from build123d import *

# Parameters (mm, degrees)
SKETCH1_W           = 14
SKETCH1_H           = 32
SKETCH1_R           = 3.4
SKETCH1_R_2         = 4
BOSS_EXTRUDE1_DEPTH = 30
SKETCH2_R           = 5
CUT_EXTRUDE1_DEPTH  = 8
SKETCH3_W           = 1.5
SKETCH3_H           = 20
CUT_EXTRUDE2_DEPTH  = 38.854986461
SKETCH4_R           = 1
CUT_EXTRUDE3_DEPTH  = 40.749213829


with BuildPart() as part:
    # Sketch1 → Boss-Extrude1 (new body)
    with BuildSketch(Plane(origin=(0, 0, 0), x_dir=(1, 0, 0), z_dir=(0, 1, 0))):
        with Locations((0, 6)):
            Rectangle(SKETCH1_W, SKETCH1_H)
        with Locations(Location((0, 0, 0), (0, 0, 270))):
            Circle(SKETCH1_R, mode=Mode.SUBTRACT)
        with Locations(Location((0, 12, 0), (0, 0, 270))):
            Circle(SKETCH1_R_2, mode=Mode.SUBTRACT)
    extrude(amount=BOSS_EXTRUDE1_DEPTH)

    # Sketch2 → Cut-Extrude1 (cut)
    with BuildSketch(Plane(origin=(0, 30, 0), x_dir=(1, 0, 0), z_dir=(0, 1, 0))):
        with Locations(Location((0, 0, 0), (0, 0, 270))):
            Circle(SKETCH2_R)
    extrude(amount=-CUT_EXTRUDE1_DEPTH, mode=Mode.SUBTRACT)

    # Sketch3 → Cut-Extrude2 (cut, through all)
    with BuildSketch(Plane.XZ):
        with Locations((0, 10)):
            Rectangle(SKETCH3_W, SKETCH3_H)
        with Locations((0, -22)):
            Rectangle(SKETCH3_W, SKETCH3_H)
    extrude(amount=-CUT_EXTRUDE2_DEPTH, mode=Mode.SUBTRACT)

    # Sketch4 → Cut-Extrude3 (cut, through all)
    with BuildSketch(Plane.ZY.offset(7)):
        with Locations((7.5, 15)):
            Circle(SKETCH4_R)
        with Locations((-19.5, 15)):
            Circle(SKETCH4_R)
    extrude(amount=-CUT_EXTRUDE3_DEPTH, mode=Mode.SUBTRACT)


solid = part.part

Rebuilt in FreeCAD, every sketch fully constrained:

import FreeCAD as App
import Part
import Sketcher
Q = App.Units.Quantity


def add_polygon(sketch, points):
    """Adds a closed chain of lines whose ends are joined by coincident constraints."""
    first, n = sketch.GeometryCount, len(points)
    for a, b in zip(points, points[1:] + points[:1]):
        sketch.addGeometry(Part.LineSegment(App.Vector(*a, 0), App.Vector(*b, 0)), False)
    for i in range(n):
        sketch.addConstraint(Sketcher.Constraint("Coincident", first + i, 2, first + (i + 1) % n, 1))

doc = App.newDocument("Part")
body = doc.addObject("PartDesign::Body", "Body")

# Sketch on XZ plane
sketch1 = body.newObject("Sketcher::SketchObject", "Sketch")
sketch1.AttachmentSupport = (doc.getObject("XZ_Plane"), [""])
sketch1.MapMode = "FlatFace"
add_polygon(sketch1, [(-7, -22), (-7, 10), (7, 10), (7, -22)])  # lines 0-3
sketch1.addGeometry(Part.Circle(App.Vector(0, 0, 0), App.Vector(0, 0, 1), 3.4), False)  # 4
sketch1.addGeometry(Part.Circle(App.Vector(0, -12, 0), App.Vector(0, 0, 1), 4), False)  # 5
sketch1.addConstraint(Sketcher.Constraint("Vertical", 0))
sketch1.addConstraint(Sketcher.Constraint("Horizontal", 1))
sketch1.addConstraint(Sketcher.Constraint("Vertical", 2))
sketch1.addConstraint(Sketcher.Constraint("Horizontal", 3))
sketch1.addConstraint(Sketcher.Constraint("Coincident", 4, 3, -1, 1))
sketch1.addConstraint(Sketcher.Constraint("PointOnObject", 5, 3, -2))
sketch1.addConstraint(Sketcher.Constraint("Diameter", 5, Q("8 mm")))
sketch1.addConstraint(Sketcher.Constraint("Diameter", 4, Q("6.8 mm")))
sketch1.addConstraint(Sketcher.Constraint("DistanceX", 1, 1, 1, 2, Q("14 mm")))
sketch1.addConstraint(Sketcher.Constraint("DistanceY", 0, 1, 0, 2, Q("32 mm")))
sketch1.addConstraint(Sketcher.Constraint("DistanceY", 5, 3, -1, 1, Q("12 mm")))
sketch1.addConstraint(Sketcher.Constraint("DistanceX", 0, 2, -1, 1, Q("7 mm")))
sketch1.addConstraint(Sketcher.Constraint("DistanceY", -1, 1, 0, 2, Q("10 mm")))
pad1 = body.newObject("PartDesign::Pad", "Pad")
pad1.Profile = sketch1
pad1.Length = 30
pad1.Reversed = True

# Sketch on XZ plane
sketch2 = body.newObject("Sketcher::SketchObject", "Sketch001")
sketch2.AttachmentSupport = (doc.getObject("XZ_Plane"), [""])
sketch2.MapMode = "FlatFace"
sketch2.AttachmentOffset = App.Placement(App.Vector(0, 0, -30), App.Rotation())
sketch2.addGeometry(Part.Circle(App.Vector(0, 0, 0), App.Vector(0, 0, 1), 5), False)
sketch2.addConstraint(Sketcher.Constraint("Coincident", 0, 3, -1, 1))
sketch2.addConstraint(Sketcher.Constraint("Diameter", 0, Q("10 mm")))
pocket1 = body.newObject("PartDesign::Pocket", "Pocket")
pocket1.Profile = sketch2
pocket1.Length = 8
pocket1.Reversed = True

# Sketch on XZ plane
sketch3 = body.newObject("Sketcher::SketchObject", "Sketch002")
sketch3.AttachmentSupport = (doc.getObject("XZ_Plane"), [""])
sketch3.MapMode = "FlatFace"
add_polygon(sketch3, [(-0.75, 20), (-0.75, 0), (0.75, 0), (0.75, 20)])  # lines 0-3
add_polygon(sketch3, [(-0.75, -12), (-0.75, -32), (0.75, -32), (0.75, -12)])  # lines 4-7
sketch3.addConstraint(Sketcher.Constraint("Vertical", 0))
sketch3.addConstraint(Sketcher.Constraint("Horizontal", 1))
sketch3.addConstraint(Sketcher.Constraint("Vertical", 2))
sketch3.addConstraint(Sketcher.Constraint("Horizontal", 3))
sketch3.addConstraint(Sketcher.Constraint("Vertical", 4))
sketch3.addConstraint(Sketcher.Constraint("Horizontal", 5))
sketch3.addConstraint(Sketcher.Constraint("Vertical", 6))
sketch3.addConstraint(Sketcher.Constraint("Horizontal", 7))
sketch3.addConstraint(Sketcher.Constraint("Symmetric", 0, 2, 1, 2, -1, 1))
sketch3.addConstraint(Sketcher.Constraint("Vertical", 3, 2, 4, 2))
sketch3.addConstraint(Sketcher.Constraint("Vertical", 2, 2, 5, 2))
sketch3.addConstraint(Sketcher.Constraint("Equal", 2, 4))
sketch3.addConstraint(Sketcher.Constraint("DistanceY", 0, 2, 0, 1, Q("20 mm")))
sketch3.addConstraint(Sketcher.Constraint("DistanceX", 1, 1, 1, 2, Q("1.5 mm")))
sketch3.addConstraint(Sketcher.Constraint("DistanceY", 4, 2, -1, 1, Q("32 mm")))
pocket2 = body.newObject("PartDesign::Pocket", "Pocket001")
pocket2.Profile = sketch3
pocket2.Type = "ThroughAll"

# Sketch on YZ plane
sketch4 = body.newObject("Sketcher::SketchObject", "Sketch003")
sketch4.AttachmentSupport = (doc.getObject("YZ_Plane"), [""])
sketch4.MapMode = "FlatFace"
sketch4.AttachmentOffset = App.Placement(App.Vector(0, 0, -7), App.Rotation())
sketch4.addGeometry(Part.Circle(App.Vector(15, 7.5, 0), App.Vector(0, 0, 1), 1), False)
sketch4.addGeometry(Part.Circle(App.Vector(15, -19.5, 0), App.Vector(0, 0, 1), 1), False)
sketch4.addConstraint(Sketcher.Constraint("Equal", 0, 1))
sketch4.addConstraint(Sketcher.Constraint("Vertical", 0, 3, 1, 3))
sketch4.addConstraint(Sketcher.Constraint("Diameter", 0, Q("2 mm")))
sketch4.addConstraint(Sketcher.Constraint("DistanceX", -1, 1, 0, 3, Q("15 mm")))
sketch4.addConstraint(Sketcher.Constraint("DistanceY", 1, 3, 0, 3, Q("27 mm")))
sketch4.addConstraint(Sketcher.Constraint("DistanceY", -1, 1, 0, 3, Q("7.5 mm")))
pocket3 = body.newObject("PartDesign::Pocket", "Pocket002")
pocket3.Profile = sketch4
pocket3.Type = "ThroughAll"
pocket3.Reversed = True

doc.recompute()
